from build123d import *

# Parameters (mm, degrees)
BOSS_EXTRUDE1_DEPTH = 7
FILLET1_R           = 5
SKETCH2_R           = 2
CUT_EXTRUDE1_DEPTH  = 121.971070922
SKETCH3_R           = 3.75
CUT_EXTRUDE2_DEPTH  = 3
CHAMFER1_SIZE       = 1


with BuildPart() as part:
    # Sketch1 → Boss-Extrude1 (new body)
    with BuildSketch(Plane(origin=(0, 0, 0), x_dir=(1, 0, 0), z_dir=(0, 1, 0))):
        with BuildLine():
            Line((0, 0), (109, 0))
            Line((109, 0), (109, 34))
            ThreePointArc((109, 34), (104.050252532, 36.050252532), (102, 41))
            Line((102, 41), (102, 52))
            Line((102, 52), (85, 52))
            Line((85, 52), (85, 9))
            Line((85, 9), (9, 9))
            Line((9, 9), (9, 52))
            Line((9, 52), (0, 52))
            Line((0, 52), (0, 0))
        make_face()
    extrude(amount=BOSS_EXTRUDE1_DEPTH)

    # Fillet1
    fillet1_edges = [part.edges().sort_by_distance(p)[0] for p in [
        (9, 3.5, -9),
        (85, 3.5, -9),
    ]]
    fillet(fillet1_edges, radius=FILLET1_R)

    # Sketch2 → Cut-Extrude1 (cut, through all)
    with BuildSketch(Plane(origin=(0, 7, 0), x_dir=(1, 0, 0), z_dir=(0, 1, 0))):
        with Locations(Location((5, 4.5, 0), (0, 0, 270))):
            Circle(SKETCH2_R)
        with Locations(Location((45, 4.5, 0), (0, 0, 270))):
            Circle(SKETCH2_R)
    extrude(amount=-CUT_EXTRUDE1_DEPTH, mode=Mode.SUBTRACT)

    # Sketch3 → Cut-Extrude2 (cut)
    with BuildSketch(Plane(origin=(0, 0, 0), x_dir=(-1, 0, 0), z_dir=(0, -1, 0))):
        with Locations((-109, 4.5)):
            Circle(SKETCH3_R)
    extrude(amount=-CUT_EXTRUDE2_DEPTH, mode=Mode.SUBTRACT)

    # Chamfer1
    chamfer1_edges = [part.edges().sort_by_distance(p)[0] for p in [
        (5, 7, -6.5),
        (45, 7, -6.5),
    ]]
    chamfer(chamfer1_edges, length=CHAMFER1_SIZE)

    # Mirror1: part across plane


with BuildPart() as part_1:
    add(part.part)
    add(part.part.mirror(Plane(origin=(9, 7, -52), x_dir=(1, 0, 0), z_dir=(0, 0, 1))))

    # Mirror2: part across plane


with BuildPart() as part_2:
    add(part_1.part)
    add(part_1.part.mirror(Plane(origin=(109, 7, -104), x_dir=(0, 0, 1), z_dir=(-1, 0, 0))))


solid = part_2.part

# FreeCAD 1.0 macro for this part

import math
import FreeCAD as App
import Part
import Sketcher
from FreeCAD import Vector


def edges_at(feature, points):
    """Names of the edges that pass closest to the given points."""
    edges = feature.Shape.Edges
    near = lambda p: min(range(len(edges)), key=lambda i: edges[i].distToShape(Part.Vertex(*p))[0])
    return sorted({f"Edge{near(p) + 1}" for p in points})

doc = App.newDocument("Part")
params = doc.addObject("Spreadsheet::Sheet", "Params")
for row, (alias, value) in enumerate([
    ("sketch1_radius", "7 mm"),
    ("sketch1_width", "109 mm"),
    ("sketch1_width2", "17 mm"),
    ("sketch1_width3", "76 mm"),
    ("sketch1_height", "34 mm"),
    ("pad1_length", "7 mm"),
    ("fillet_radius", "5 mm"),
    ("sketch2_diameter", "4 mm"),
    ("sketch3_diameter", "7.5 mm"),
    ("pocket2_length", "3 mm"),
    ("chamfer_size", "1 mm"),
], start=1):
    params.set(f"A{row}", alias)
    params.set(f"B{row}", "=" + value)
    params.setAlias(f"B{row}", alias)

body = doc.addObject("PartDesign::Body", "Body")

# Sketch on XZ plane
sketch1 = body.newObject("Sketcher::SketchObject", "Sketch")
sketch1.AttachmentSupport = (doc.getObject("XZ_Plane"), [""])
sketch1.MapMode = "FlatFace"
sketch1.addGeometry([
    Part.LineSegment(Vector(0, 0, 0), Vector(109, 0, 0)),  # 0
    Part.LineSegment(Vector(109, 0, 0), Vector(109, -34, 0)),  # 1
    Part.ArcOfCircle(Part.Circle(Vector(109, -41, 0), Vector(0, 0, 1), 7), math.radians(90), math.radians(180)),  # 2
    Part.LineSegment(Vector(102, -41, 0), Vector(102, -52, 0)),  # 3
    Part.LineSegment(Vector(102, -52, 0), Vector(85, -52, 0)),  # 4
    Part.LineSegment(Vector(85, -52, 0), Vector(85, -9, 0)),  # 5
    Part.LineSegment(Vector(85, -9, 0), Vector(9, -9, 0)),  # 6
    Part.LineSegment(Vector(9, -9, 0), Vector(9, -52, 0)),  # 7
    Part.LineSegment(Vector(9, -52, 0), Vector(0, -52, 0)),  # 8
    Part.LineSegment(Vector(0, -52, 0), Vector(0, 0, 0)),  # 9
], False)
sketch1.addConstraint([
    Sketcher.Constraint("Coincident", 0, 2, 1, 1),
    Sketcher.Constraint("Coincident", 1, 2, 2, 1),
    Sketcher.Constraint("Tangent", 2, 2, 3, 1),
    Sketcher.Constraint("Coincident", 3, 2, 4, 1),
    Sketcher.Constraint("Coincident", 4, 2, 5, 1),
    Sketcher.Constraint("Coincident", 5, 2, 6, 1),
    Sketcher.Constraint("Coincident", 6, 2, 7, 1),
    Sketcher.Constraint("Coincident", 7, 2, 8, 1),
    Sketcher.Constraint("Coincident", 8, 2, 9, 1),
    Sketcher.Constraint("Coincident", 9, 2, 0, 1),
    Sketcher.Constraint("Horizontal", 0),
    Sketcher.Constraint("Vertical", 1),
    Sketcher.Constraint("Vertical", 3),
    Sketcher.Constraint("Horizontal", 4),
    Sketcher.Constraint("Vertical", 5),
    Sketcher.Constraint("Horizontal", 6),
    Sketcher.Constraint("Vertical", 7),
    Sketcher.Constraint("Horizontal", 8),
    Sketcher.Constraint("Vertical", 9),
    Sketcher.Constraint("Coincident", 9, 2, -1, 1),
    Sketcher.Constraint("Horizontal", 4, 2, 7, 2),
    Sketcher.Constraint("Vertical", 2, 3, 0, 2),
    Sketcher.Constraint("Radius", 2, 7.0),
    Sketcher.Constraint("DistanceX", 0, 1, 0, 2, 109.0),
    Sketcher.Constraint("DistanceX", 4, 2, 4, 1, 17.0),
    Sketcher.Constraint("DistanceX", 6, 2, 6, 1, 76.0),
    Sketcher.Constraint("DistanceY", 1, 2, 1, 1, 34.0),
    Sketcher.Constraint("DistanceY", 3, 2, 3, 1, 11.0),
    Sketcher.Constraint("DistanceY", 5, 1, 5, 2, 43.0),
])
sketch1.setExpression("Constraints[22]", "Params.sketch1_radius")
sketch1.setExpression("Constraints[23]", "Params.sketch1_width")
sketch1.setExpression("Constraints[24]", "Params.sketch1_width2")
sketch1.setExpression("Constraints[25]", "Params.sketch1_width3")
sketch1.setExpression("Constraints[26]", "Params.sketch1_height")
pad1 = body.newObject("PartDesign::Pad", "Pad")
pad1.Profile = sketch1
pad1.setExpression("Length", "Params.pad1_length")
pad1.Reversed = True
doc.recompute()

fillet = body.newObject("PartDesign::Fillet", "Fillet")
fillet.Base = (pad1, edges_at(pad1, [(9, 3.5, -9), (85, 3.5, -9)]))
fillet.setExpression("Radius", "Params.fillet_radius")

# Sketch on XZ plane
sketch2 = body.newObject("Sketcher::SketchObject", "Sketch001")
sketch2.AttachmentSupport = (doc.getObject("XZ_Plane"), [""])
sketch2.MapMode = "FlatFace"
sketch2.AttachmentOffset = App.Placement(Vector(0, 0, -7), App.Rotation())
sketch2.addGeometry([
    Part.Circle(Vector(5, -4.5, 0), Vector(0, 0, 1), 2),
    Part.Circle(Vector(45, -4.5, 0), Vector(0, 0, 1), 2),
], False)
sketch2.addConstraint([
    Sketcher.Constraint("Equal", 0, 1),
    Sketcher.Constraint("Horizontal", 0, 3, 1, 3),
    Sketcher.Constraint("Diameter", 0, 4.0),
    Sketcher.Constraint("DistanceX", -1, 1, 0, 3, 5.0),
    Sketcher.Constraint("DistanceX", -1, 1, 1, 3, 45.0),
    Sketcher.Constraint("DistanceY", 0, 3, -1, 1, 4.5),
])
sketch2.setExpression("Constraints[2]", "Params.sketch2_diameter")
pocket1 = body.newObject("PartDesign::Pocket", "Pocket")
pocket1.Profile = sketch2
pocket1.Type = "ThroughAll"
pocket1.Reversed = True

# Sketch on XZ plane
sketch3 = body.newObject("Sketcher::SketchObject", "Sketch002")
sketch3.AttachmentSupport = (doc.getObject("XZ_Plane"), [""])
sketch3.MapMode = "FlatFace"
sketch3.addGeometry(Part.Circle(Vector(109, -4.5, 0), Vector(0, 0, 1), 3.8), False)
sketch3.addConstraint([
    Sketcher.Constraint("Diameter", 0, 7.5),
    Sketcher.Constraint("DistanceX", -1, 1, 0, 3, 109.0),
    Sketcher.Constraint("DistanceY", 0, 3, -1, 1, 4.5),
])
sketch3.setExpression("Constraints[0]", "Params.sketch3_diameter")
pocket2 = body.newObject("PartDesign::Pocket", "Pocket001")
pocket2.Profile = sketch3
pocket2.setExpression("Length", "Params.pocket2_length")
doc.recompute()

chamfer = body.newObject("PartDesign::Chamfer", "Chamfer")
chamfer.Base = (pocket2, edges_at(pocket2, [(5, 7, -6.5), (45, 7, -6.5)]))
chamfer.setExpression("Size", "Params.chamfer_size")
body2 = doc.addObject("PartDesign::Body", "Body001")
doc.recompute()

body2.BaseFeature = body
doc.recompute()

mirroring = doc.addObject("Part::Mirroring", "Mirroring")
mirroring.Source = body
mirroring.Base = Vector(9, 7, -52)
mirroring.Normal = Vector(0, 0, 1)
body3 = doc.addObject("PartDesign::Body", "Body002")
body3.BaseFeature = mirroring
boolean = body2.newObject("PartDesign::Boolean", "Boolean")
boolean.Type = "Fuse"
boolean.addObjects([body3])
doc.recompute()
body4 = doc.addObject("PartDesign::Body", "Body003")
doc.recompute()

body4.BaseFeature = body2
doc.recompute()

mirroring2 = doc.addObject("Part::Mirroring", "Mirroring001")
mirroring2.Source = body2
mirroring2.Base = Vector(109, 7, -104)
mirroring2.Normal = Vector(-1, 0, 0)
body5 = doc.addObject("PartDesign::Body", "Body004")
body5.BaseFeature = mirroring2
boolean2 = body4.newObject("PartDesign::Boolean", "Boolean001")
boolean2.Type = "Fuse"
boolean2.addObjects([body5])
doc.recompute()
mirroring.Visibility = False
mirroring2.Visibility = False

doc.recompute()
